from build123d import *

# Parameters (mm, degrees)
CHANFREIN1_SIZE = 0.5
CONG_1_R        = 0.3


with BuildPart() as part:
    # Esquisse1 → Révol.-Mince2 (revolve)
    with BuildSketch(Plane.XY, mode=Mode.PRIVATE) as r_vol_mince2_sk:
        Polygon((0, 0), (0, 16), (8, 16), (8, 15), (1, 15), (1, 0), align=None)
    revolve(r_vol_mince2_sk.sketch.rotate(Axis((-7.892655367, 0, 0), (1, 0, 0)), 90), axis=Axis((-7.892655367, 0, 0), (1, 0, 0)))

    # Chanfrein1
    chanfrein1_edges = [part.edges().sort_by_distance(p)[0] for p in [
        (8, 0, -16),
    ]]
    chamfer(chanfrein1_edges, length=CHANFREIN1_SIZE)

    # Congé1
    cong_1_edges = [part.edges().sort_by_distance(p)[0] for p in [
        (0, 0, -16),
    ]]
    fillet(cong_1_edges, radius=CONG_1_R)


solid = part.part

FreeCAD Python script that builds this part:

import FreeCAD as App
import Part
import Sketcher
from FreeCAD import Vector


def edges_at(feature, points):
    """Names of the edges that pass closest to the given points."""
    edges = feature.Shape.Edges
    near = lambda p: min(range(len(edges)), key=lambda i: edges[i].distToShape(Part.Vertex(*p))[0])
    return sorted({f"Edge{near(p) + 1}" for p in points})

doc = App.newDocument("Part")
body = doc.addObject("PartDesign::Body", "Body")

# Sketch on XY plane
sketch1 = doc.addObject("Sketcher::SketchObject", "Sketch")
body.addObject(sketch1)
sketch1.AttachmentSupport = (doc.XY_Plane, [""])
sketch1.MapMode = "FlatFace"
sketch1.addGeometry([
    Part.LineSegment(Vector(0, 16, 0), Vector(0, 0, 0)),  # 0
    Part.LineSegment(Vector(0, 0, 0), Vector(1, 0, 0)),  # 1
    Part.LineSegment(Vector(1, 0, 0), Vector(1, 15, 0)),  # 2
    Part.LineSegment(Vector(1, 15, 0), Vector(8, 15, 0)),  # 3
    Part.LineSegment(Vector(8, 15, 0), Vector(8, 16, 0)),  # 4
    Part.LineSegment(Vector(8, 16, 0), Vector(0, 16, 0)),  # 5
], False)
sketch1.addConstraint([
    Sketcher.Constraint("Coincident", 0, 2, 1, 1),
    Sketcher.Constraint("Coincident", 1, 2, 2, 1),
    Sketcher.Constraint("Coincident", 2, 2, 3, 1),
    Sketcher.Constraint("Coincident", 3, 2, 4, 1),
    Sketcher.Constraint("Coincident", 4, 2, 5, 1),
    Sketcher.Constraint("Coincident", 5, 2, 0, 1),
    Sketcher.Constraint("Vertical", 0),
    Sketcher.Constraint("Horizontal", 1),
    Sketcher.Constraint("Vertical", 2),
    Sketcher.Constraint("Horizontal", 3),
    Sketcher.Constraint("Vertical", 4),
    Sketcher.Constraint("Horizontal", 5),
    Sketcher.Constraint("Coincident", 0, 2, -1, 1),
    Sketcher.Constraint("Equal", 1, 4),
    Sketcher.Constraint("DistanceX", 1, 1, 1, 2, 1.0),
    Sketcher.Constraint("DistanceX", 3, 1, 3, 2, 7.0),
    Sketcher.Constraint("DistanceY", 0, 2, 0, 1, 16.0),
])
revolution = doc.addObject("PartDesign::Revolution", "Revolution")
body.addObject(revolution)
revolution.Profile = sketch1
revolution.ReferenceAxis = (sketch1, ["H_Axis"])
revolution.Angle = 360
doc.recompute()

chamfer = doc.addObject("PartDesign::Chamfer", "Chamfer")
body.addObject(chamfer)
chamfer.Base = (revolution, edges_at(revolution, [(8, 0, -16)]))
chamfer.Size = 0.5
doc.recompute()

fillet = doc.addObject("PartDesign::Fillet", "Fillet")
body.addObject(fillet)
fillet.Base = (chamfer, edges_at(chamfer, [(0, 0, -16)]))
fillet.Radius = 0.3

doc.recompute()
